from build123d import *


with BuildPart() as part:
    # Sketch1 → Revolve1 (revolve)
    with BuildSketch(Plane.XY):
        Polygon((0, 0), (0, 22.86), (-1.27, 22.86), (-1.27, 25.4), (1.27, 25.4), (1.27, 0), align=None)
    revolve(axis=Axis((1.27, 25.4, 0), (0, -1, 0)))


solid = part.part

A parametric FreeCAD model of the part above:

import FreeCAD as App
import Part
import Sketcher
from FreeCAD import Vector
Q = App.Units.Quantity


def add_polygon(sketch, points):
    """Adds a closed chain of lines whose ends are joined by coincident constraints."""
    first, n = sketch.GeometryCount, len(points)
    for a, b in zip(points, points[1:] + points[:1]):
        sketch.addGeometry(Part.LineSegment(App.Vector(*a, 0), App.Vector(*b, 0)), False)
    for i in range(n):
        sketch.addConstraint(Sketcher.Constraint("Coincident", first + i, 2, first + (i + 1) % n, 1))

doc = App.newDocument("Part")
body = doc.addObject("PartDesign::Body", "Body")

# Sketch on XY plane
sketch1 = body.newObject("Sketcher::SketchObject", "Sketch")
sketch1.AttachmentSupport = (doc.getObject("XY_Plane"), [""])
sketch1.MapMode = "FlatFace"
add_polygon(sketch1, [(0, 22.9), (0, 0), (1.3, 0), (1.3, 25.4), (-1.3, 25.4), (-1.3, 22.9)])  # lines 0-5
sketch1.addGeometry(Part.LineSegment(Vector(1.3, 25.4, 0), Vector(1.3, 0, 0)), True)  # axis
sketch1.addConstraint([
    Sketcher.Constraint("Vertical", 0),
    Sketcher.Constraint("Horizontal", 1),
    Sketcher.Constraint("Vertical", 2),
    Sketcher.Constraint("Horizontal", 3),
    Sketcher.Constraint("Vertical", 4),
    Sketcher.Constraint("Horizontal", 5),
    Sketcher.Constraint("Vertical", 6),
    Sketcher.Constraint("Coincident", 0, 2, -1, 1),
    Sketcher.Constraint("Coincident", 6, 1, 2, 2),
    Sketcher.Constraint("PointOnObject", 6, 2, -1),
    Sketcher.Constraint("Equal", 1, 5),
    Sketcher.Constraint("Equal", 3, 4),
    Sketcher.Constraint("DistanceY", 2, 1, 2, 2, Q("1 in")),
    Sketcher.Constraint("DistanceX", 3, 2, 3, 1, Q("0.1 in")),
])
revolution = body.newObject("PartDesign::Revolution", "Revolution")
revolution.Profile = sketch1
revolution.ReferenceAxis = (sketch1, ["Axis0"])
revolution.Angle = 360

doc.recompute()
